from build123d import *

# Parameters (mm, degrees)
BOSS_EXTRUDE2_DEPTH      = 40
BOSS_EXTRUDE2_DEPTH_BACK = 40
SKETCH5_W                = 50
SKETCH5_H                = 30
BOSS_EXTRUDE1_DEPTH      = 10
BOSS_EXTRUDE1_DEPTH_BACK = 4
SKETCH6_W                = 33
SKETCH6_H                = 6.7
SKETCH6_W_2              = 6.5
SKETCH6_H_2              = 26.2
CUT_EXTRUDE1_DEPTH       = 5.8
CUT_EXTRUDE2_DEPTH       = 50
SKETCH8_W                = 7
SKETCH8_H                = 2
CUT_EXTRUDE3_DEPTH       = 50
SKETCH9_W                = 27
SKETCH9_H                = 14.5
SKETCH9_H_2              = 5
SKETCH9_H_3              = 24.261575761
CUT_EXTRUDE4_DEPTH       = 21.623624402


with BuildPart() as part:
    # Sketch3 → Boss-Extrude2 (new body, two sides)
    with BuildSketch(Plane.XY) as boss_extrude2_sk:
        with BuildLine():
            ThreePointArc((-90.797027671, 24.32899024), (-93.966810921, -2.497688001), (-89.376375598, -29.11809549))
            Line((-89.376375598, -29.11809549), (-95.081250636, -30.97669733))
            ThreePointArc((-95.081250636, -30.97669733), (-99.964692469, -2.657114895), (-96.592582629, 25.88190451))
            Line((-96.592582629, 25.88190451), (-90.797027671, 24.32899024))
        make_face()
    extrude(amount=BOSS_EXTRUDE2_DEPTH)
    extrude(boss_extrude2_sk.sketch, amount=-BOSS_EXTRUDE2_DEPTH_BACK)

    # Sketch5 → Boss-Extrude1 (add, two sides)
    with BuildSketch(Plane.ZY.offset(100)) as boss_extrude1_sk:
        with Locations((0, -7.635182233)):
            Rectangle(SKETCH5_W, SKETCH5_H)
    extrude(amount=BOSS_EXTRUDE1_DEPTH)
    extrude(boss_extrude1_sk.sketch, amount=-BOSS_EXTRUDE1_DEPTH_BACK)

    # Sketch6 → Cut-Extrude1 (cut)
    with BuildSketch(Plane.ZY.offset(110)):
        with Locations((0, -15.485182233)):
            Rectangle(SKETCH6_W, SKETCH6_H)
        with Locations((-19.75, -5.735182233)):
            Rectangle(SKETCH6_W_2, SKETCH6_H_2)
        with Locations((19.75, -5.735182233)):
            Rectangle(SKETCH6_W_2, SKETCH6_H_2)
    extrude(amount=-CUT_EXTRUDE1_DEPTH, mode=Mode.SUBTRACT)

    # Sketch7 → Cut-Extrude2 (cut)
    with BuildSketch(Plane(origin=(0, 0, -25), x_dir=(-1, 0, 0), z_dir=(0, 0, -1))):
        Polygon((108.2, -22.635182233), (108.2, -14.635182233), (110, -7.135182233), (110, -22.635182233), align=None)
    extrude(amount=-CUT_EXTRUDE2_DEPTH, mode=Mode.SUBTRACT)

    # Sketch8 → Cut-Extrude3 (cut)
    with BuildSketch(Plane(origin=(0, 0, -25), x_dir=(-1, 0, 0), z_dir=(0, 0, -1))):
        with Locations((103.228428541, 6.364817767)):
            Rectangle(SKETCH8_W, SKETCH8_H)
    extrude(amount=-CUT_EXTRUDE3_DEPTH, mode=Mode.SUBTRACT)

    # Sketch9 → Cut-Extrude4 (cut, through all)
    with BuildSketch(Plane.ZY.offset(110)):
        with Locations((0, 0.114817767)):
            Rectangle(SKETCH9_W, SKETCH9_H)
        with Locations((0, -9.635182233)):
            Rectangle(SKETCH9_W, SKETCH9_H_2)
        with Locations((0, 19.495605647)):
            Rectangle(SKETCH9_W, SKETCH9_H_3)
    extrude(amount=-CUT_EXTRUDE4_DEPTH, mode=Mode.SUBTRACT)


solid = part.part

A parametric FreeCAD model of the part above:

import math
import FreeCAD as App
import Part
import Sketcher
from FreeCAD import Vector
Q = App.Units.Quantity

doc = App.newDocument("Part")
body = doc.addObject("PartDesign::Body", "Body")

# Sketch on XY plane
sketch1 = doc.addObject("Sketcher::SketchObject", "Sketch")
body.addObject(sketch1)
sketch1.AttachmentSupport = (doc.XY_Plane, [""])
sketch1.MapMode = "FlatFace"
sketch1.addGeometry(Part.ArcOfCircle(Part.Circle(Vector(0, 0, 0), Vector(0, 0, 1), 94), math.radians(165), math.radians(198)), False)
sketch1.addGeometry(Part.LineSegment(Vector(-91, 24, 0), Vector(-97, 26, 0)), False)
sketch1.addGeometry(Part.ArcOfCircle(Part.Circle(Vector(0, 0, 0), Vector(0, 0, 1), 100), math.radians(165), math.radians(198)), False)
sketch1.addGeometry(Part.LineSegment(Vector(-95, -31, 0), Vector(-89, -29, 0)), False)
sketch1.addConstraint(Sketcher.Constraint("Coincident", 0, 1, 1, 1))
sketch1.addConstraint(Sketcher.Constraint("Coincident", 1, 2, 2, 1))
sketch1.addConstraint(Sketcher.Constraint("Coincident", 2, 2, 3, 1))
sketch1.addConstraint(Sketcher.Constraint("Coincident", 3, 2, 0, 2))
sketch1.addConstraint(Sketcher.Constraint("Coincident", 0, 3, -1, 1))
sketch1.addConstraint(Sketcher.Constraint("Coincident", 2, 3, -1, 1))
sketch1.addConstraint(Sketcher.Constraint("Radius", 0, Q("94 mm")))
sketch1.addConstraint(Sketcher.Constraint("Radius", 2, Q("100 mm")))
sketch1.addConstraint(Sketcher.Constraint("Angle", 1, Q("165 deg")))
sketch1.addConstraint(Sketcher.Constraint("DistanceY", 3, 2, 1, 2, Q("55 mm")))
sketch1.addConstraint(Sketcher.Constraint("DistanceY", 2, 2, 1, 2, Q("56.858602 mm")))
sketch1.addConstraint(Sketcher.Constraint("DistanceY", -1, 1, 0, 1, Q("24.32899 mm")))
pad1 = doc.addObject("PartDesign::Pad", "Pad")
body.addObject(pad1)
pad1.Profile = sketch1
pad1.Type = "TwoLengths"
pad1.Length = 40
pad1.Length2 = 40

# Sketch on YZ plane
sketch2 = doc.addObject("Sketcher::SketchObject", "Sketch001")
body.addObject(sketch2)
sketch2.AttachmentSupport = (doc.YZ_Plane, [""])
sketch2.MapMode = "FlatFace"
sketch2.AttachmentOffset = App.Placement(Vector(0, 0, -100), App.Rotation())
sketch2.addGeometry(Part.LineSegment(Vector(7, -25, 0), Vector(-23, -25, 0)), False)
sketch2.addGeometry(Part.LineSegment(Vector(-23, -25, 0), Vector(-23, 25, 0)), False)
sketch2.addGeometry(Part.LineSegment(Vector(-23, 25, 0), Vector(7, 25, 0)), False)
sketch2.addGeometry(Part.LineSegment(Vector(7, 25, 0), Vector(7, -25, 0)), False)
sketch2.addConstraint(Sketcher.Constraint("Coincident", 0, 2, 1, 1))
sketch2.addConstraint(Sketcher.Constraint("Coincident", 1, 2, 2, 1))
sketch2.addConstraint(Sketcher.Constraint("Coincident", 2, 2, 3, 1))
sketch2.addConstraint(Sketcher.Constraint("Coincident", 3, 2, 0, 1))
sketch2.addConstraint(Sketcher.Constraint("Horizontal", 0))
sketch2.addConstraint(Sketcher.Constraint("Vertical", 1))
sketch2.addConstraint(Sketcher.Constraint("Horizontal", 2))
sketch2.addConstraint(Sketcher.Constraint("Vertical", 3))
sketch2.addConstraint(Sketcher.Constraint("DistanceX", 0, 2, 0, 1, Q("30 mm")))
sketch2.addConstraint(Sketcher.Constraint("DistanceY", 1, 1, 1, 2, Q("50 mm")))
sketch2.addConstraint(Sketcher.Constraint("DistanceY", 0, 2, -1, 1, Q("25 mm")))
sketch2.addConstraint(Sketcher.Constraint("DistanceX", 0, 2, -1, 1, Q("22.635182 mm")))
pad2 = doc.addObject("PartDesign::Pad", "Pad001")
body.addObject(pad2)
pad2.Profile = sketch2
pad2.Type = "TwoLengths"
pad2.Length = 10
pad2.Length2 = 4
pad2.Reversed = True

# Sketch on YZ plane
sketch3 = doc.addObject("Sketcher::SketchObject", "Sketch002")
body.addObject(sketch3)
sketch3.AttachmentSupport = (doc.YZ_Plane, [""])
sketch3.MapMode = "FlatFace"
sketch3.AttachmentOffset = App.Placement(Vector(0, 0, -110), App.Rotation())
sketch3.addGeometry(Part.LineSegment(Vector(-12, 16, 0), Vector(-12, -16, 0)), False)
sketch3.addGeometry(Part.LineSegment(Vector(-12, -16, 0), Vector(7, -16, 0)), False)
sketch3.addGeometry(Part.LineSegment(Vector(7, -16, 0), Vector(7, -23, 0)), False)
sketch3.addGeometry(Part.LineSegment(Vector(7, -23, 0), Vector(-19, -23, 0)), False)
sketch3.addGeometry(Part.LineSegment(Vector(-19, -23, 0), Vector(-19, 23, 0)), False)
sketch3.addGeometry(Part.LineSegment(Vector(-19, 23, 0), Vector(7, 23, 0)), False)
sketch3.addGeometry(Part.LineSegment(Vector(7, 23, 0), Vector(7, 16, 0)), False)
sketch3.addGeometry(Part.LineSegment(Vector(7, 16, 0), Vector(-12, 16, 0)), False)
sketch3.addConstraint(Sketcher.Constraint("Coincident", 0, 2, 1, 1))
sketch3.addConstraint(Sketcher.Constraint("Coincident", 1, 2, 2, 1))
sketch3.addConstraint(Sketcher.Constraint("Coincident", 2, 2, 3, 1))
sketch3.addConstraint(Sketcher.Constraint("Coincident", 3, 2, 4, 1))
sketch3.addConstraint(Sketcher.Constraint("Coincident", 4, 2, 5, 1))
sketch3.addConstraint(Sketcher.Constraint("Coincident", 5, 2, 6, 1))
sketch3.addConstraint(Sketcher.Constraint("Coincident", 6, 2, 7, 1))
sketch3.addConstraint(Sketcher.Constraint("Coincident", 7, 2, 0, 1))
sketch3.addConstraint(Sketcher.Constraint("Vertical", 0))
sketch3.addConstraint(Sketcher.Constraint("Horizontal", 1))
sketch3.addConstraint(Sketcher.Constraint("Vertical", 2))
sketch3.addConstraint(Sketcher.Constraint("Horizontal", 3))
sketch3.addConstraint(Sketcher.Constraint("Vertical", 4))
sketch3.addConstraint(Sketcher.Constraint("Horizontal", 5))
sketch3.addConstraint(Sketcher.Constraint("Vertical", 6))
sketch3.addConstraint(Sketcher.Constraint("Horizontal", 7))
sketch3.addConstraint(Sketcher.Constraint("Symmetric", 2, 2, 5, 2, -1))
sketch3.addConstraint(Sketcher.Constraint("Equal", 2, 6))
sketch3.addConstraint(Sketcher.Constraint("DistanceY", 0, 2, 0, 1, Q("33 mm")))
sketch3.addConstraint(Sketcher.Constraint("DistanceY", 4, 1, 4, 2, Q("46 mm")))
sketch3.addConstraint(Sketcher.Constraint("DistanceX", 1, 1, 1, 2, Q("19.5 mm")))
sketch3.addConstraint(Sketcher.Constraint("DistanceX", 3, 2, 3, 1, Q("26.2 mm")))
sketch3.addConstraint(Sketcher.Constraint("DistanceX", 0, 2, -1, 1, Q("12.135182 mm")))
pocket1 = doc.addObject("PartDesign::Pocket", "Pocket")
body.addObject(pocket1)
pocket1.Profile = sketch3
pocket1.Length = 5.8
pocket1.Reversed = True

# Sketch on XY plane
sketch4 = doc.addObject("Sketcher::SketchObject", "Sketch003")
body.addObject(sketch4)
sketch4.AttachmentSupport = (doc.XY_Plane, [""])
sketch4.MapMode = "FlatFace"
sketch4.AttachmentOffset = App.Placement(Vector(0, 0, -25), App.Rotation())
sketch4.addGeometry(Part.LineSegment(Vector(-108.2, -14.6, 0), Vector(-108.2, -22.6, 0)), False)
sketch4.addGeometry(Part.LineSegment(Vector(-108.2, -22.6, 0), Vector(-110, -22.6, 0)), False)
sketch4.addGeometry(Part.LineSegment(Vector(-110, -22.6, 0), Vector(-110, -7.1, 0)), False)
sketch4.addGeometry(Part.LineSegment(Vector(-110, -7.1, 0), Vector(-108.2, -14.6, 0)), False)
sketch4.addConstraint(Sketcher.Constraint("Coincident", 0, 2, 1, 1))
sketch4.addConstraint(Sketcher.Constraint("Coincident", 1, 2, 2, 1))
sketch4.addConstraint(Sketcher.Constraint("Coincident", 2, 2, 3, 1))
sketch4.addConstraint(Sketcher.Constraint("Coincident", 3, 2, 0, 1))
sketch4.addConstraint(Sketcher.Constraint("Vertical", 0))
sketch4.addConstraint(Sketcher.Constraint("Horizontal", 1))
sketch4.addConstraint(Sketcher.Constraint("Vertical", 2))
sketch4.addConstraint(Sketcher.Constraint("DistanceY", 0, 2, 0, 1, Q("8 mm")))
sketch4.addConstraint(Sketcher.Constraint("DistanceX", 1, 2, 1, 1, Q("1.8 mm")))
sketch4.addConstraint(Sketcher.Constraint("DistanceY", 2, 1, 2, 2, Q("15.5 mm")))
sketch4.addConstraint(Sketcher.Constraint("DistanceX", 1, 2, -1, 1, Q("110 mm")))
sketch4.addConstraint(Sketcher.Constraint("DistanceY", 0, 2, -1, 1, Q("22.635182 mm")))
pocket2 = doc.addObject("PartDesign::Pocket", "Pocket001")
body.addObject(pocket2)
pocket2.Profile = sketch4
pocket2.Length = 50
pocket2.Reversed = True

# Sketch on XY plane
sketch5 = doc.addObject("Sketcher::SketchObject", "Sketch004")
body.addObject(sketch5)
sketch5.AttachmentSupport = (doc.XY_Plane, [""])
sketch5.MapMode = "FlatFace"
sketch5.AttachmentOffset = App.Placement(Vector(0, 0, -25), App.Rotation())
sketch5.addGeometry(Part.LineSegment(Vector(-99.7, 7.4, 0), Vector(-99.7, 5.4, 0)), False)
sketch5.addGeometry(Part.LineSegment(Vector(-99.7, 5.4, 0), Vector(-106.7, 5.4, 0)), False)
sketch5.addGeometry(Part.LineSegment(Vector(-106.7, 5.4, 0), Vector(-106.7, 7.4, 0)), False)
sketch5.addGeometry(Part.LineSegment(Vector(-106.7, 7.4, 0), Vector(-99.7, 7.4, 0)), False)
sketch5.addConstraint(Sketcher.Constraint("Coincident", 0, 2, 1, 1))
sketch5.addConstraint(Sketcher.Constraint("Coincident", 1, 2, 2, 1))
sketch5.addConstraint(Sketcher.Constraint("Coincident", 2, 2, 3, 1))
sketch5.addConstraint(Sketcher.Constraint("Coincident", 3, 2, 0, 1))
sketch5.addConstraint(Sketcher.Constraint("Vertical", 0))
sketch5.addConstraint(Sketcher.Constraint("Horizontal", 1))
sketch5.addConstraint(Sketcher.Constraint("Vertical", 2))
sketch5.addConstraint(Sketcher.Constraint("Horizontal", 3))
sketch5.addConstraint(Sketcher.Constraint("DistanceX", 1, 2, 1, 1, Q("7 mm")))
sketch5.addConstraint(Sketcher.Constraint("DistanceY", 0, 2, 0, 1, Q("2 mm")))
sketch5.addConstraint(Sketcher.Constraint("DistanceX", 0, 2, -1, 1, Q("99.728429 mm")))
sketch5.addConstraint(Sketcher.Constraint("DistanceY", -1, 1, 0, 2, Q("5.364818 mm")))
pocket3 = doc.addObject("PartDesign::Pocket", "Pocket002")
body.addObject(pocket3)
pocket3.Profile = sketch5
pocket3.Length = 50
pocket3.Reversed = True

# Sketch on YZ plane
sketch6 = doc.addObject("Sketcher::SketchObject", "Sketch005")
body.addObject(sketch6)
sketch6.AttachmentSupport = (doc.YZ_Plane, [""])
sketch6.MapMode = "FlatFace"
sketch6.AttachmentOffset = App.Placement(Vector(0, 0, -110), App.Rotation())
sketch6.addGeometry(Part.LineSegment(Vector(-12, -14, 0), Vector(-12, 14, 0)), False)
sketch6.addGeometry(Part.LineSegment(Vector(-12, 14, 0), Vector(32, 14, 0)), False)
sketch6.addGeometry(Part.LineSegment(Vector(32, 14, 0), Vector(32, -14, 0)), False)
sketch6.addGeometry(Part.LineSegment(Vector(32, -14, 0), Vector(-12, -14, 0)), False)
sketch6.addConstraint(Sketcher.Constraint("Coincident", 0, 2, 1, 1))
sketch6.addConstraint(Sketcher.Constraint("Coincident", 1, 2, 2, 1))
sketch6.addConstraint(Sketcher.Constraint("Coincident", 2, 2, 3, 1))
sketch6.addConstraint(Sketcher.Constraint("Coincident", 3, 2, 0, 1))
sketch6.addConstraint(Sketcher.Constraint("Vertical", 0))
sketch6.addConstraint(Sketcher.Constraint("Horizontal", 1))
sketch6.addConstraint(Sketcher.Constraint("Vertical", 2))
sketch6.addConstraint(Sketcher.Constraint("Horizontal", 3))
sketch6.addConstraint(Sketcher.Constraint("DistanceY", 0, 1, 0, 2, Q("27 mm")))
sketch6.addConstraint(Sketcher.Constraint("DistanceY", -1, 1, 0, 2, Q("13.5 mm")))
sketch6.addConstraint(Sketcher.Constraint("DistanceX", 1, 1, 1, 2, Q("43.761576 mm")))
sketch6.addConstraint(Sketcher.Constraint("DistanceX", 0, 2, -1, 1, Q("12.135182 mm")))
pocket4 = doc.addObject("PartDesign::Pocket", "Pocket003")
body.addObject(pocket4)
pocket4.Profile = sketch6
pocket4.Type = "ThroughAll"
pocket4.Reversed = True

doc.recompute()
